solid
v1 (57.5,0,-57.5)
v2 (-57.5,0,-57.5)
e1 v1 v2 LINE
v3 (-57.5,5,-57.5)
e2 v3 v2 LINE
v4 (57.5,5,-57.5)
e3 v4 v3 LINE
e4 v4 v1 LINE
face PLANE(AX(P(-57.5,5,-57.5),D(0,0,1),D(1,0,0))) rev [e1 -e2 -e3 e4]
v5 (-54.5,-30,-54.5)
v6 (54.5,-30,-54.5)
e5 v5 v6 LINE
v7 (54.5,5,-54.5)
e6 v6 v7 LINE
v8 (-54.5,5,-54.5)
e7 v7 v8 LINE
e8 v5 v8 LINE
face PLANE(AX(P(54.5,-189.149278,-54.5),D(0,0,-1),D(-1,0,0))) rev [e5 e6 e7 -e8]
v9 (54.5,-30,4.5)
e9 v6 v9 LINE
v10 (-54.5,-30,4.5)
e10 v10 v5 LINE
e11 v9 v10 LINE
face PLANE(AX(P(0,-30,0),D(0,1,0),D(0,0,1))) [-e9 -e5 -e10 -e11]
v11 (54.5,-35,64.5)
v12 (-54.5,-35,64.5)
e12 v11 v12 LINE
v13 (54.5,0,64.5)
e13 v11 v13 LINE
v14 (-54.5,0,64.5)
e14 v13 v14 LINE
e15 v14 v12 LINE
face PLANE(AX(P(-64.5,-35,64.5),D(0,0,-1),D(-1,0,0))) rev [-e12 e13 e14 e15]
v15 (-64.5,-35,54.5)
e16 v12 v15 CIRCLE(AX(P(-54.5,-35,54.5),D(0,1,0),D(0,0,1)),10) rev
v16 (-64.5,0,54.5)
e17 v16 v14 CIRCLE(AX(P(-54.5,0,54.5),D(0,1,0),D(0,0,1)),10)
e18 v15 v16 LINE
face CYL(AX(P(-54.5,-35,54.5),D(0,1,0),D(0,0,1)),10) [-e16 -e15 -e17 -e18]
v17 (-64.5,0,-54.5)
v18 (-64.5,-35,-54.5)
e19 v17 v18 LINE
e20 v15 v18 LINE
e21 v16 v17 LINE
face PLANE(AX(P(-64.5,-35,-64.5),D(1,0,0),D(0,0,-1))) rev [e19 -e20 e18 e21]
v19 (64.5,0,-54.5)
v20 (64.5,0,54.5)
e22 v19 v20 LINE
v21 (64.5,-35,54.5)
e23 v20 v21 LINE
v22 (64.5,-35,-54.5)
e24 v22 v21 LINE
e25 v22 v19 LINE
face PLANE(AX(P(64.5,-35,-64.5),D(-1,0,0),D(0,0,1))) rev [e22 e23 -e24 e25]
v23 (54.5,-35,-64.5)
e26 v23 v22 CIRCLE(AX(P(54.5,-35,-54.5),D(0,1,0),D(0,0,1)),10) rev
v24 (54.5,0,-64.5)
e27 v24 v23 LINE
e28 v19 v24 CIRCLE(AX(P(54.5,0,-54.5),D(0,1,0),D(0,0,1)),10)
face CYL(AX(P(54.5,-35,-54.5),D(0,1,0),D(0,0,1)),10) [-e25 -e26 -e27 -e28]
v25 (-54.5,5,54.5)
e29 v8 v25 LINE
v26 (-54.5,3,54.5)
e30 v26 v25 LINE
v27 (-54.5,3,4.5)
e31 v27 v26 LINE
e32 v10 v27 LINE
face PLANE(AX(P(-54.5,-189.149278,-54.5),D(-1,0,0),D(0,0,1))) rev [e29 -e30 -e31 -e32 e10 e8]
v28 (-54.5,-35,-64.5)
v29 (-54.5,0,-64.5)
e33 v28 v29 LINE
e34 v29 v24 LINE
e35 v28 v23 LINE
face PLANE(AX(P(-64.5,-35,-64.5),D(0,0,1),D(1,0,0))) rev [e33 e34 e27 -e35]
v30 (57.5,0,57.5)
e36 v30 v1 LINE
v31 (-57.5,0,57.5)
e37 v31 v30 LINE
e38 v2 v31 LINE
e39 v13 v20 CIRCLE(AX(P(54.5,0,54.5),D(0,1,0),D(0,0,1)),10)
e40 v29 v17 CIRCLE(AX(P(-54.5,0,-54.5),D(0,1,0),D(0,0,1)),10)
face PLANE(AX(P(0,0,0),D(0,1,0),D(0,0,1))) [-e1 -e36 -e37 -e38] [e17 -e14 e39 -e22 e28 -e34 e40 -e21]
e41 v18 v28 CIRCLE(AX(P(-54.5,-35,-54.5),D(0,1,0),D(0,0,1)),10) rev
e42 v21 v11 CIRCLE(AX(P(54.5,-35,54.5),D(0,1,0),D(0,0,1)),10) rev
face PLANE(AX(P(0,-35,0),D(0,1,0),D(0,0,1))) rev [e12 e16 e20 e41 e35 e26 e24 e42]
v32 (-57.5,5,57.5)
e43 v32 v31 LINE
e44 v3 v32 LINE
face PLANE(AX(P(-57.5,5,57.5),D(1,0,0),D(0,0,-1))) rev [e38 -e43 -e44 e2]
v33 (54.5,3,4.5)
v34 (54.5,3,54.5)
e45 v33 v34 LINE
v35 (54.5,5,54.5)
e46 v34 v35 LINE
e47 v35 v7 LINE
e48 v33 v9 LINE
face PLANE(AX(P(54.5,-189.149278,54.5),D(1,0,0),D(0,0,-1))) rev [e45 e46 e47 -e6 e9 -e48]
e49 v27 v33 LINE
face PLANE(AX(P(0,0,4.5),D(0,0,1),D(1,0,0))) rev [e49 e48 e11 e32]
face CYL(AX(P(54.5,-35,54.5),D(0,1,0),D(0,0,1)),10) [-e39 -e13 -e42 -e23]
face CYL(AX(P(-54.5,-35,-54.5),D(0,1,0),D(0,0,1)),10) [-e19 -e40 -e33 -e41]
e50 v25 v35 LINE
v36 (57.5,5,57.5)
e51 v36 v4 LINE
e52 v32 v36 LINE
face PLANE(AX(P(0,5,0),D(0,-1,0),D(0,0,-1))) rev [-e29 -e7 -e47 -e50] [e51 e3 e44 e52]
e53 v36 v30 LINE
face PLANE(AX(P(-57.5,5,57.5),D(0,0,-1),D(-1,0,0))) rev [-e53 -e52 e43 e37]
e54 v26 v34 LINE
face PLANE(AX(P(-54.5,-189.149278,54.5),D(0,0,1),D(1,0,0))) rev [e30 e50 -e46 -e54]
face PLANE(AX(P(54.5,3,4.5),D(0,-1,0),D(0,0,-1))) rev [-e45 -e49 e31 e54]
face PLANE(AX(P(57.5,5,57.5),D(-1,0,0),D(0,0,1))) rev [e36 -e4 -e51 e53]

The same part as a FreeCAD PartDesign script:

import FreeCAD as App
import Part
import Sketcher

V = App.Vector
Q = App.Units.Quantity


def edges_at(feature, points):
    """Names of the edges that pass closest to the given points."""
    edges = feature.Shape.Edges
    near = lambda p: min(range(len(edges)), key=lambda i: edges[i].distToShape(Part.Vertex(*p))[0])
    return sorted({f"Edge{near(p) + 1}" for p in points})


def add_polygon(sketch, points):
    """Adds a closed chain of lines whose ends are joined by coincident constraints."""
    first, n = sketch.GeometryCount, len(points)
    for a, b in zip(points, points[1:] + points[:1]):
        sketch.addGeometry(Part.LineSegment(App.Vector(*a, 0), App.Vector(*b, 0)), False)
    for i in range(n):
        sketch.addConstraint(Sketcher.Constraint("Coincident", first + i, 2, first + (i + 1) % n, 1))

doc = App.newDocument("Part")
body = doc.addObject("PartDesign::Body", "Body")

sketch1 = body.newObject("Sketcher::SketchObject", "Sketch")
sketch1.AttachmentSupport = (doc.getObject("XZ_Plane"), [""])
sketch1.MapMode = "FlatFace"
add_polygon(sketch1, [(-58, -58), (-58, 58), (58, 58), (58, -58)])
sketch1.addConstraint(Sketcher.Constraint("Vertical", 0))
sketch1.addConstraint(Sketcher.Constraint("Horizontal", 1))
sketch1.addConstraint(Sketcher.Constraint("Vertical", 2))
sketch1.addConstraint(Sketcher.Constraint("Horizontal", 3))
sketch1.addConstraint(Sketcher.Constraint("Symmetric", 0, 2, 2, 2, -1, 1))
sketch1.addConstraint(Sketcher.Constraint("Equal", 3, 0))
sketch1.addConstraint(Sketcher.Constraint("DistanceX", 1, 1, 1, 2, Q("115 mm")))
pad1 = body.newObject("PartDesign::Pad", "Pad")
pad1.Profile = sketch1
pad1.Length = 5
pad1.Reversed = True

sketch2 = body.newObject("Sketcher::SketchObject", "Sketch001")
sketch2.AttachmentSupport = (doc.getObject("XZ_Plane"), [""])
sketch2.MapMode = "FlatFace"
add_polygon(sketch2, [(-64, 64), (-64, -64), (64, -64), (64, 64)])
sketch2.addConstraint(Sketcher.Constraint("Vertical", 0))
sketch2.addConstraint(Sketcher.Constraint("Horizontal", 1))
sketch2.addConstraint(Sketcher.Constraint("Vertical", 2))
sketch2.addConstraint(Sketcher.Constraint("Horizontal", 3))
sketch2.addConstraint(Sketcher.Constraint("Symmetric", 0, 2, 2, 2, -1, 1))
sketch2.addConstraint(Sketcher.Constraint("Equal", 3, 0))
sketch2.addConstraint(Sketcher.Constraint("DistanceX", 1, 1, 1, 2, Q("129 mm")))
pad2 = body.newObject("PartDesign::Pad", "Pad001")
pad2.Profile = sketch2
pad2.Length = 35

sketch3 = body.newObject("Sketcher::SketchObject", "Sketch002")
sketch3.AttachmentSupport = (doc.getObject("XZ_Plane"), [""])
sketch3.MapMode = "FlatFace"
sketch3.AttachmentOffset = App.Placement(V(0, 0, -5), App.Rotation())
add_polygon(sketch3, [(-54, -54), (-54, 54), (54, 54), (54, -54)])
sketch3.addConstraint(Sketcher.Constraint("Vertical", 0))
sketch3.addConstraint(Sketcher.Constraint("Horizontal", 1))
sketch3.addConstraint(Sketcher.Constraint("Vertical", 2))
sketch3.addConstraint(Sketcher.Constraint("Horizontal", 3))
sketch3.addConstraint(Sketcher.Constraint("Symmetric", 0, 2, 2, 2, -1, 1))
sketch3.addConstraint(Sketcher.Constraint("Equal", 3, 0))
sketch3.addConstraint(Sketcher.Constraint("DistanceX", 1, 1, 1, 2, Q("109 mm")))
pocket1 = body.newObject("PartDesign::Pocket", "Pocket")
pocket1.Profile = sketch3
pocket1.Length = 35
pocket1.Reversed = True
doc.recompute()

fillet = body.newObject("PartDesign::Fillet", "Fillet")
fillet.Base = (pocket1, edges_at(pocket1, [
    (64.5, -17.5, -64.5),
    (64.5, -17.5, 64.5),
    (-64.5, -17.5, 64.5),
    (-64.5, -17.5, -64.5),
]))
fillet.Radius = 10

sketch4 = body.newObject("Sketcher::SketchObject", "Sketch003")
sketch4.AttachmentSupport = (doc.getObject("XY_Plane"), [""])
sketch4.MapMode = "FlatFace"
sketch4.AttachmentOffset = App.Placement(V(0, 0, 54.5), App.Rotation())
add_polygon(sketch4, [(54, 3), (54, -30), (-54, -30), (-54, 3)])
sketch4.addConstraint(Sketcher.Constraint("Vertical", 0))
sketch4.addConstraint(Sketcher.Constraint("Horizontal", 1))
sketch4.addConstraint(Sketcher.Constraint("Vertical", 2))
sketch4.addConstraint(Sketcher.Constraint("Horizontal", 3))
sketch4.addConstraint(Sketcher.Constraint("DistanceX", 1, 2, 1, 1, Q("109 mm")))
sketch4.addConstraint(Sketcher.Constraint("DistanceY", 0, 2, 0, 1, Q("33 mm")))
sketch4.addConstraint(Sketcher.Constraint("DistanceY", 0, 2, -1, 1, Q("30 mm")))
sketch4.addConstraint(Sketcher.Constraint("DistanceX", -1, 1, 0, 2, Q("54.5 mm")))
pad3 = body.newObject("PartDesign::Pad", "Pad002")
pad3.Profile = sketch4
pad3.Length = 50
pad3.Reversed = True

doc.recompute()
